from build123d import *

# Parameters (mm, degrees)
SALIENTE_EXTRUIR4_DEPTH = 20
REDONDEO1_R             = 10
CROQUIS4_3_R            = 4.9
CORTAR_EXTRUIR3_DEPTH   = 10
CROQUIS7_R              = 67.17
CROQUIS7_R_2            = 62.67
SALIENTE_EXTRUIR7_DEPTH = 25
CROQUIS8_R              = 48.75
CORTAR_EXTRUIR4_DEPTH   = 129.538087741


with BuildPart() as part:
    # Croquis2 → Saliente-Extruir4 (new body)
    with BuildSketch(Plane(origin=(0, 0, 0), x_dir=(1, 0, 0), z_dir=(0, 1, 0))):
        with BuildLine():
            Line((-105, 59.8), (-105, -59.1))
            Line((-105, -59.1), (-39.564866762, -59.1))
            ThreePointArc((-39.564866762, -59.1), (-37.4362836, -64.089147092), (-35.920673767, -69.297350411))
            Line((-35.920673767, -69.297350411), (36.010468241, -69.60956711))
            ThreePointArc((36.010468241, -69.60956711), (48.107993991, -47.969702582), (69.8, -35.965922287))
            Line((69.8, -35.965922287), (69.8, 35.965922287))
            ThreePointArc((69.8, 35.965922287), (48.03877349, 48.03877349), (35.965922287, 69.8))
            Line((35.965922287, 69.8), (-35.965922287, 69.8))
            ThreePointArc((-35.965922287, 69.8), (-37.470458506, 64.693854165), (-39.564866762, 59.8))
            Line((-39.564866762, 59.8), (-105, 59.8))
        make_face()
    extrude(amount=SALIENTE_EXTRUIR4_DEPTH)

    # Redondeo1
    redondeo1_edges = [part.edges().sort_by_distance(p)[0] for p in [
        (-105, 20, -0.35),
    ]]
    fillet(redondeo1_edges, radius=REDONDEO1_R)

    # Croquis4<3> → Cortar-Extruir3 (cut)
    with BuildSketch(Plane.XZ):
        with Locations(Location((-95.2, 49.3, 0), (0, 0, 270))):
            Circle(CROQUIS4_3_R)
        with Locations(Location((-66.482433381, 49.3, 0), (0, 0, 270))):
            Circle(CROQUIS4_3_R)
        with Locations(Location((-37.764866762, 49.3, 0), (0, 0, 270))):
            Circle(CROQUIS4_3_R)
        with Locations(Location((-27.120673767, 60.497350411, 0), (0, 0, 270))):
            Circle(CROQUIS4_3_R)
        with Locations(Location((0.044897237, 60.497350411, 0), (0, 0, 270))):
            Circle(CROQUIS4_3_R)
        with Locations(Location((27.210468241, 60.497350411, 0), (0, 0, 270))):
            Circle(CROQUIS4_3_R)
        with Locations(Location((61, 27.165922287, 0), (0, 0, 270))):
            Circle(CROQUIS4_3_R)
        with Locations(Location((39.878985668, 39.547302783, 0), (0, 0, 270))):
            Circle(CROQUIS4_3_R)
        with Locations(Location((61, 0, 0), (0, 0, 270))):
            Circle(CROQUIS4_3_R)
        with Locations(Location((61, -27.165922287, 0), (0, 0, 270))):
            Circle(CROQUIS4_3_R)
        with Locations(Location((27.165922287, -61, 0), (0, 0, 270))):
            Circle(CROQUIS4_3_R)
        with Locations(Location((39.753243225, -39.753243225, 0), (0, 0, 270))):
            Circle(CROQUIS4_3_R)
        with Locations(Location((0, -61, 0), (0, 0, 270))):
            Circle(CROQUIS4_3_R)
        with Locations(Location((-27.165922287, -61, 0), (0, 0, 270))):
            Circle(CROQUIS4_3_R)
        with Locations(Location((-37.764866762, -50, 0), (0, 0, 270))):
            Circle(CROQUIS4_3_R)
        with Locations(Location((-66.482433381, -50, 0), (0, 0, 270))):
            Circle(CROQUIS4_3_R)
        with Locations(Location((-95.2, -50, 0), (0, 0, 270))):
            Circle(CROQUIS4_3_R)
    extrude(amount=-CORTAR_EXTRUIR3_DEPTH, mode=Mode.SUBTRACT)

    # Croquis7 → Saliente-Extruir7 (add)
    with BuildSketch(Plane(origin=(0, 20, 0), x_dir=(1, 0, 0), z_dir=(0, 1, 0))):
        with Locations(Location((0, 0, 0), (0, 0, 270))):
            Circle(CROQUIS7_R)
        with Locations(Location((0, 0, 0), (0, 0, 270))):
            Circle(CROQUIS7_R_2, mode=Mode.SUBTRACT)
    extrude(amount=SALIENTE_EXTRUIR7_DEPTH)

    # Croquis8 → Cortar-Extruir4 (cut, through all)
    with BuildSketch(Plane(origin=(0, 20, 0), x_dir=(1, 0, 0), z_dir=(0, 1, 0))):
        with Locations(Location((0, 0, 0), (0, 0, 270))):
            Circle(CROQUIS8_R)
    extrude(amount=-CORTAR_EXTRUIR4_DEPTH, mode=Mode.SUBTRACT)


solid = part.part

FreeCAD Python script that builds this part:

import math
import FreeCAD as App
import Part
import Sketcher

V = App.Vector


def edges_at(feature, points):
    """Names of the edges that pass closest to the given points."""
    edges = feature.Shape.Edges
    near = lambda p: min(range(len(edges)), key=lambda i: edges[i].distToShape(Part.Vertex(*p))[0])
    return sorted({f"Edge{near(p) + 1}" for p in points})

doc = App.newDocument("Part")
body = doc.addObject("PartDesign::Body", "Body")

# Sketch on XZ plane
sketch1 = doc.addObject("Sketcher::SketchObject", "Sketch")
body.addObject(sketch1)
sketch1.AttachmentSupport = (doc.XZ_Plane, [""])
sketch1.MapMode = "FlatFace"
sketch1.addGeometry([
    Part.LineSegment(V(-105, -60, 0), V(-105, 59, 0)),  # 0
    Part.LineSegment(V(-105, 59, 0), V(-40, 59, 0)),  # 1
    Part.ArcOfCircle(Part.Circle(V(-80, 79, 0), V(0, 0, 1), 45), math.radians(-26.55), math.radians(-12.79)),  # 2
    Part.LineSegment(V(-36, 69, 0), V(36, 70, 0)),  # 3
    Part.ArcOfCircle(Part.Circle(V(80, 80, 0), V(0, 0, 1), 45), math.radians(-167), math.radians(-103)),  # 4
    Part.LineSegment(V(70, 36, 0), V(70, -36, 0)),  # 5
    Part.ArcOfCircle(Part.Circle(V(80, -80, 0), V(0, 0, 1), 45), math.radians(103), math.radians(167)),  # 6
    Part.LineSegment(V(36, -70, 0), V(-36, -70, 0)),  # 7
    Part.ArcOfCircle(Part.Circle(V(-80, -80, 0), V(0, 0, 1), 45), math.radians(13.04), math.radians(26.55)),  # 8
    Part.LineSegment(V(-40, -60, 0), V(-105, -60, 0)),  # 9
], False)
sketch1.addConstraint([
    Sketcher.Constraint("Coincident", 0, 2, 1, 1),
    Sketcher.Constraint("Coincident", 1, 2, 2, 1),
    Sketcher.Constraint("Coincident", 2, 2, 3, 1),
    Sketcher.Constraint("Coincident", 3, 2, 4, 1),
    Sketcher.Constraint("Coincident", 4, 2, 5, 1),
    Sketcher.Constraint("Coincident", 5, 2, 6, 1),
    Sketcher.Constraint("Coincident", 6, 2, 7, 1),
    Sketcher.Constraint("Coincident", 7, 2, 8, 1),
    Sketcher.Constraint("Coincident", 8, 2, 9, 1),
    Sketcher.Constraint("Coincident", 9, 2, 0, 1),
    Sketcher.Constraint("Vertical", 0),
    Sketcher.Constraint("Horizontal", 1),
    Sketcher.Constraint("Vertical", 5),
    Sketcher.Constraint("Horizontal", 7),
    Sketcher.Constraint("Horizontal", 9),
    Sketcher.Constraint("Equal", 2, 4),
    Sketcher.Constraint("Equal", 4, 6),
    Sketcher.Constraint("Equal", 6, 8),
    Sketcher.Constraint("Symmetric", 4, 3, 8, 3, -1, 1),
    Sketcher.Constraint("Symmetric", 6, 3, 8, 3, -2),
    Sketcher.Constraint("Vertical", 2, 3, 8, 3),
    Sketcher.Constraint("Vertical", 1, 2, 8, 2),
    Sketcher.Constraint("Equal", 7, 5),
    Sketcher.Constraint("Radius", 2, 45.2),
    Sketcher.Constraint("DistanceY", 0, 1, 0, 2, 118.9),
    Sketcher.Constraint("DistanceX", 2, 3, -1, 1, 80.0),
    Sketcher.Constraint("DistanceY", -1, 1, 4, 3, 80.0),
    Sketcher.Constraint("DistanceX", 0, 2, -1, 1, 105.0),
    Sketcher.Constraint("DistanceY", 7, 2, 8, 2, 10.0),
    Sketcher.Constraint("DistanceY", -1, 1, 2, 3, 79.3),
    Sketcher.Constraint("Distance", 3, 71.93182),
    Sketcher.Constraint("DistanceY", -1, 1, 2, 2, 69.29735),
])
pad1 = doc.addObject("PartDesign::Pad", "Pad")
body.addObject(pad1)
pad1.Profile = sketch1
pad1.Length = 20
pad1.Reversed = True
doc.recompute()

fillet = doc.addObject("PartDesign::Fillet", "Fillet")
body.addObject(fillet)
fillet.Base = (pad1, edges_at(pad1, [(-105, 20, -0.35)]))
fillet.Radius = 10

# Sketch on XZ plane
sketch2 = doc.addObject("Sketcher::SketchObject", "Sketch001")
body.addObject(sketch2)
sketch2.AttachmentSupport = (doc.XZ_Plane, [""])
sketch2.MapMode = "FlatFace"
sketch2.addGeometry([
    Part.Circle(V(-95.2, 49.3, 0), V(0, 0, 1), 4.9),  # 0
    Part.Circle(V(-66.5, 49.3, 0), V(0, 0, 1), 4.9),  # 1
    Part.Circle(V(-37.8, 49.3, 0), V(0, 0, 1), 4.9),  # 2
    Part.Circle(V(-27.1, 60.5, 0), V(0, 0, 1), 4.9),  # 3
    Part.Circle(V(0, 60.5, 0), V(0, 0, 1), 4.9),  # 4
    Part.Circle(V(27.2, 60.5, 0), V(0, 0, 1), 4.9),  # 5
    Part.Circle(V(61, 27.2, 0), V(0, 0, 1), 4.9),  # 6
    Part.Circle(V(39.9, 39.5, 0), V(0, 0, 1), 4.9),  # 7
    Part.Circle(V(61, 0, 0), V(0, 0, 1), 4.9),  # 8
    Part.Circle(V(61, -27.2, 0), V(0, 0, 1), 4.9),  # 9
    Part.Circle(V(27.2, -61, 0), V(0, 0, 1), 4.9),  # 10
    Part.Circle(V(39.8, -39.8, 0), V(0, 0, 1), 4.9),  # 11
    Part.Circle(V(0, -61, 0), V(0, 0, 1), 4.9),  # 12
    Part.Circle(V(-27.2, -61, 0), V(0, 0, 1), 4.9),  # 13
    Part.Circle(V(-37.8, -50, 0), V(0, 0, 1), 4.9),  # 14
    Part.Circle(V(-66.5, -50, 0), V(0, 0, 1), 4.9),  # 15
    Part.Circle(V(-95.2, -50, 0), V(0, 0, 1), 4.9),  # 16
], False)
sketch2.addConstraint([
    Sketcher.Constraint("Equal", 0, 1),
    Sketcher.Constraint("Equal", 1, 2),
    Sketcher.Constraint("Equal", 2, 3),
    Sketcher.Constraint("Equal", 3, 4),
    Sketcher.Constraint("Equal", 4, 5),
    Sketcher.Constraint("Equal", 5, 6),
    Sketcher.Constraint("Equal", 6, 7),
    Sketcher.Constraint("Equal", 7, 8),
    Sketcher.Constraint("Equal", 8, 9),
    Sketcher.Constraint("Equal", 9, 10),
    Sketcher.Constraint("Equal", 10, 11),
    Sketcher.Constraint("Equal", 11, 12),
    Sketcher.Constraint("Equal", 12, 13),
    Sketcher.Constraint("Equal", 13, 14),
    Sketcher.Constraint("Equal", 14, 15),
    Sketcher.Constraint("Equal", 15, 16),
    Sketcher.Constraint("Symmetric", 10, 3, 13, 3, -2),
    Sketcher.Constraint("Symmetric", 6, 3, 9, 3, -1),
    Sketcher.Constraint("PointOnObject", 8, 3, -1),
    Sketcher.Constraint("PointOnObject", 12, 3, -2),
    Sketcher.Constraint("Horizontal", 0, 3, 1, 3),
    Sketcher.Constraint("Horizontal", 1, 3, 2, 3),
    Sketcher.Constraint("Horizontal", 3, 3, 4, 3),
    Sketcher.Constraint("Horizontal", 4, 3, 5, 3),
    Sketcher.Constraint("Horizontal", 10, 3, 12, 3),
    Sketcher.Constraint("Horizontal", 14, 3, 15, 3),
    Sketcher.Constraint("Horizontal", 15, 3, 16, 3),
    Sketcher.Constraint("Vertical", 6, 3, 8, 3),
    Sketcher.Constraint("Vertical", 2, 3, 14, 3),
    Sketcher.Constraint("Vertical", 1, 3, 15, 3),
    Sketcher.Constraint("Vertical", 0, 3, 16, 3),
    Sketcher.Constraint("Diameter", 0, 9.8),
    Sketcher.Constraint("DistanceX", -1, 1, 6, 3, 61.0),
    Sketcher.Constraint("DistanceY", 10, 3, -1, 1, 61.0),
    Sketcher.Constraint("DistanceY", 14, 3, -1, 1, 50.0),
    Sketcher.Constraint("DistanceX", 0, 3, -1, 1, 95.2),
    Sketcher.Constraint("DistanceY", -1, 1, 0, 3, 49.3),
    Sketcher.Constraint("DistanceX", 1, 3, 5, 3, 93.692902),
    Sketcher.Constraint("DistanceY", -1, 1, 3, 3, 60.49735),
    Sketcher.Constraint("DistanceX", -1, 1, 5, 3, 27.210468),
    Sketcher.Constraint("DistanceX", 1, 3, 3, 3, 39.36176),
    Sketcher.Constraint("DistanceX", 3, 3, 4, 3, 27.165571),
    Sketcher.Constraint("DistanceY", 6, 3, 5, 3, 33.331428),
    Sketcher.Constraint("DistanceY", 6, 3, 7, 3, 12.38138),
    Sketcher.Constraint("DistanceX", 4, 3, 7, 3, 39.834088),
    Sketcher.Constraint("DistanceY", 11, 3, 9, 3, 12.587321),
    Sketcher.Constraint("DistanceX", 10, 3, 11, 3, 12.587321),
    Sketcher.Constraint("DistanceX", 14, 3, 10, 3, 64.930789),
    Sketcher.Constraint("DistanceX", 15, 3, 13, 3, 39.316511),
])
pocket1 = doc.addObject("PartDesign::Pocket", "Pocket")
body.addObject(pocket1)
pocket1.Profile = sketch2
pocket1.Length = 10

# Sketch on XZ plane
sketch3 = doc.addObject("Sketcher::SketchObject", "Sketch002")
body.addObject(sketch3)
sketch3.AttachmentSupport = (doc.XZ_Plane, [""])
sketch3.MapMode = "FlatFace"
sketch3.AttachmentOffset = App.Placement(V(0, 0, -20), App.Rotation())
sketch3.addGeometry([
    Part.Circle(V(0, 0, 0), V(0, 0, 1), 67),
    Part.Circle(V(0, 0, 0), V(0, 0, 1), 63),
], False)
sketch3.addConstraint([
    Sketcher.Constraint("Coincident", 0, 3, -1, 1),
    Sketcher.Constraint("Coincident", 1, 3, -1, 1),
    Sketcher.Constraint("Diameter", 0, 134.34),
    Sketcher.Constraint("Diameter", 1, 125.34),
])
pad2 = doc.addObject("PartDesign::Pad", "Pad001")
body.addObject(pad2)
pad2.Profile = sketch3
pad2.Length = 25
pad2.Reversed = True

# Sketch on XZ plane
sketch4 = doc.addObject("Sketcher::SketchObject", "Sketch003")
body.addObject(sketch4)
sketch4.AttachmentSupport = (doc.XZ_Plane, [""])
sketch4.MapMode = "FlatFace"
sketch4.AttachmentOffset = App.Placement(V(0, 0, -20), App.Rotation())
sketch4.addGeometry(Part.Circle(V(0, 0, 0), V(0, 0, 1), 49), False)
sketch4.addConstraint([
    Sketcher.Constraint("Coincident", 0, 3, -1, 1),
    Sketcher.Constraint("Diameter", 0, 97.5),
])
pocket2 = doc.addObject("PartDesign::Pocket", "Pocket001")
body.addObject(pocket2)
pocket2.Profile = sketch4
pocket2.Type = "ThroughAll"
pocket2.Reversed = True

doc.recompute()
